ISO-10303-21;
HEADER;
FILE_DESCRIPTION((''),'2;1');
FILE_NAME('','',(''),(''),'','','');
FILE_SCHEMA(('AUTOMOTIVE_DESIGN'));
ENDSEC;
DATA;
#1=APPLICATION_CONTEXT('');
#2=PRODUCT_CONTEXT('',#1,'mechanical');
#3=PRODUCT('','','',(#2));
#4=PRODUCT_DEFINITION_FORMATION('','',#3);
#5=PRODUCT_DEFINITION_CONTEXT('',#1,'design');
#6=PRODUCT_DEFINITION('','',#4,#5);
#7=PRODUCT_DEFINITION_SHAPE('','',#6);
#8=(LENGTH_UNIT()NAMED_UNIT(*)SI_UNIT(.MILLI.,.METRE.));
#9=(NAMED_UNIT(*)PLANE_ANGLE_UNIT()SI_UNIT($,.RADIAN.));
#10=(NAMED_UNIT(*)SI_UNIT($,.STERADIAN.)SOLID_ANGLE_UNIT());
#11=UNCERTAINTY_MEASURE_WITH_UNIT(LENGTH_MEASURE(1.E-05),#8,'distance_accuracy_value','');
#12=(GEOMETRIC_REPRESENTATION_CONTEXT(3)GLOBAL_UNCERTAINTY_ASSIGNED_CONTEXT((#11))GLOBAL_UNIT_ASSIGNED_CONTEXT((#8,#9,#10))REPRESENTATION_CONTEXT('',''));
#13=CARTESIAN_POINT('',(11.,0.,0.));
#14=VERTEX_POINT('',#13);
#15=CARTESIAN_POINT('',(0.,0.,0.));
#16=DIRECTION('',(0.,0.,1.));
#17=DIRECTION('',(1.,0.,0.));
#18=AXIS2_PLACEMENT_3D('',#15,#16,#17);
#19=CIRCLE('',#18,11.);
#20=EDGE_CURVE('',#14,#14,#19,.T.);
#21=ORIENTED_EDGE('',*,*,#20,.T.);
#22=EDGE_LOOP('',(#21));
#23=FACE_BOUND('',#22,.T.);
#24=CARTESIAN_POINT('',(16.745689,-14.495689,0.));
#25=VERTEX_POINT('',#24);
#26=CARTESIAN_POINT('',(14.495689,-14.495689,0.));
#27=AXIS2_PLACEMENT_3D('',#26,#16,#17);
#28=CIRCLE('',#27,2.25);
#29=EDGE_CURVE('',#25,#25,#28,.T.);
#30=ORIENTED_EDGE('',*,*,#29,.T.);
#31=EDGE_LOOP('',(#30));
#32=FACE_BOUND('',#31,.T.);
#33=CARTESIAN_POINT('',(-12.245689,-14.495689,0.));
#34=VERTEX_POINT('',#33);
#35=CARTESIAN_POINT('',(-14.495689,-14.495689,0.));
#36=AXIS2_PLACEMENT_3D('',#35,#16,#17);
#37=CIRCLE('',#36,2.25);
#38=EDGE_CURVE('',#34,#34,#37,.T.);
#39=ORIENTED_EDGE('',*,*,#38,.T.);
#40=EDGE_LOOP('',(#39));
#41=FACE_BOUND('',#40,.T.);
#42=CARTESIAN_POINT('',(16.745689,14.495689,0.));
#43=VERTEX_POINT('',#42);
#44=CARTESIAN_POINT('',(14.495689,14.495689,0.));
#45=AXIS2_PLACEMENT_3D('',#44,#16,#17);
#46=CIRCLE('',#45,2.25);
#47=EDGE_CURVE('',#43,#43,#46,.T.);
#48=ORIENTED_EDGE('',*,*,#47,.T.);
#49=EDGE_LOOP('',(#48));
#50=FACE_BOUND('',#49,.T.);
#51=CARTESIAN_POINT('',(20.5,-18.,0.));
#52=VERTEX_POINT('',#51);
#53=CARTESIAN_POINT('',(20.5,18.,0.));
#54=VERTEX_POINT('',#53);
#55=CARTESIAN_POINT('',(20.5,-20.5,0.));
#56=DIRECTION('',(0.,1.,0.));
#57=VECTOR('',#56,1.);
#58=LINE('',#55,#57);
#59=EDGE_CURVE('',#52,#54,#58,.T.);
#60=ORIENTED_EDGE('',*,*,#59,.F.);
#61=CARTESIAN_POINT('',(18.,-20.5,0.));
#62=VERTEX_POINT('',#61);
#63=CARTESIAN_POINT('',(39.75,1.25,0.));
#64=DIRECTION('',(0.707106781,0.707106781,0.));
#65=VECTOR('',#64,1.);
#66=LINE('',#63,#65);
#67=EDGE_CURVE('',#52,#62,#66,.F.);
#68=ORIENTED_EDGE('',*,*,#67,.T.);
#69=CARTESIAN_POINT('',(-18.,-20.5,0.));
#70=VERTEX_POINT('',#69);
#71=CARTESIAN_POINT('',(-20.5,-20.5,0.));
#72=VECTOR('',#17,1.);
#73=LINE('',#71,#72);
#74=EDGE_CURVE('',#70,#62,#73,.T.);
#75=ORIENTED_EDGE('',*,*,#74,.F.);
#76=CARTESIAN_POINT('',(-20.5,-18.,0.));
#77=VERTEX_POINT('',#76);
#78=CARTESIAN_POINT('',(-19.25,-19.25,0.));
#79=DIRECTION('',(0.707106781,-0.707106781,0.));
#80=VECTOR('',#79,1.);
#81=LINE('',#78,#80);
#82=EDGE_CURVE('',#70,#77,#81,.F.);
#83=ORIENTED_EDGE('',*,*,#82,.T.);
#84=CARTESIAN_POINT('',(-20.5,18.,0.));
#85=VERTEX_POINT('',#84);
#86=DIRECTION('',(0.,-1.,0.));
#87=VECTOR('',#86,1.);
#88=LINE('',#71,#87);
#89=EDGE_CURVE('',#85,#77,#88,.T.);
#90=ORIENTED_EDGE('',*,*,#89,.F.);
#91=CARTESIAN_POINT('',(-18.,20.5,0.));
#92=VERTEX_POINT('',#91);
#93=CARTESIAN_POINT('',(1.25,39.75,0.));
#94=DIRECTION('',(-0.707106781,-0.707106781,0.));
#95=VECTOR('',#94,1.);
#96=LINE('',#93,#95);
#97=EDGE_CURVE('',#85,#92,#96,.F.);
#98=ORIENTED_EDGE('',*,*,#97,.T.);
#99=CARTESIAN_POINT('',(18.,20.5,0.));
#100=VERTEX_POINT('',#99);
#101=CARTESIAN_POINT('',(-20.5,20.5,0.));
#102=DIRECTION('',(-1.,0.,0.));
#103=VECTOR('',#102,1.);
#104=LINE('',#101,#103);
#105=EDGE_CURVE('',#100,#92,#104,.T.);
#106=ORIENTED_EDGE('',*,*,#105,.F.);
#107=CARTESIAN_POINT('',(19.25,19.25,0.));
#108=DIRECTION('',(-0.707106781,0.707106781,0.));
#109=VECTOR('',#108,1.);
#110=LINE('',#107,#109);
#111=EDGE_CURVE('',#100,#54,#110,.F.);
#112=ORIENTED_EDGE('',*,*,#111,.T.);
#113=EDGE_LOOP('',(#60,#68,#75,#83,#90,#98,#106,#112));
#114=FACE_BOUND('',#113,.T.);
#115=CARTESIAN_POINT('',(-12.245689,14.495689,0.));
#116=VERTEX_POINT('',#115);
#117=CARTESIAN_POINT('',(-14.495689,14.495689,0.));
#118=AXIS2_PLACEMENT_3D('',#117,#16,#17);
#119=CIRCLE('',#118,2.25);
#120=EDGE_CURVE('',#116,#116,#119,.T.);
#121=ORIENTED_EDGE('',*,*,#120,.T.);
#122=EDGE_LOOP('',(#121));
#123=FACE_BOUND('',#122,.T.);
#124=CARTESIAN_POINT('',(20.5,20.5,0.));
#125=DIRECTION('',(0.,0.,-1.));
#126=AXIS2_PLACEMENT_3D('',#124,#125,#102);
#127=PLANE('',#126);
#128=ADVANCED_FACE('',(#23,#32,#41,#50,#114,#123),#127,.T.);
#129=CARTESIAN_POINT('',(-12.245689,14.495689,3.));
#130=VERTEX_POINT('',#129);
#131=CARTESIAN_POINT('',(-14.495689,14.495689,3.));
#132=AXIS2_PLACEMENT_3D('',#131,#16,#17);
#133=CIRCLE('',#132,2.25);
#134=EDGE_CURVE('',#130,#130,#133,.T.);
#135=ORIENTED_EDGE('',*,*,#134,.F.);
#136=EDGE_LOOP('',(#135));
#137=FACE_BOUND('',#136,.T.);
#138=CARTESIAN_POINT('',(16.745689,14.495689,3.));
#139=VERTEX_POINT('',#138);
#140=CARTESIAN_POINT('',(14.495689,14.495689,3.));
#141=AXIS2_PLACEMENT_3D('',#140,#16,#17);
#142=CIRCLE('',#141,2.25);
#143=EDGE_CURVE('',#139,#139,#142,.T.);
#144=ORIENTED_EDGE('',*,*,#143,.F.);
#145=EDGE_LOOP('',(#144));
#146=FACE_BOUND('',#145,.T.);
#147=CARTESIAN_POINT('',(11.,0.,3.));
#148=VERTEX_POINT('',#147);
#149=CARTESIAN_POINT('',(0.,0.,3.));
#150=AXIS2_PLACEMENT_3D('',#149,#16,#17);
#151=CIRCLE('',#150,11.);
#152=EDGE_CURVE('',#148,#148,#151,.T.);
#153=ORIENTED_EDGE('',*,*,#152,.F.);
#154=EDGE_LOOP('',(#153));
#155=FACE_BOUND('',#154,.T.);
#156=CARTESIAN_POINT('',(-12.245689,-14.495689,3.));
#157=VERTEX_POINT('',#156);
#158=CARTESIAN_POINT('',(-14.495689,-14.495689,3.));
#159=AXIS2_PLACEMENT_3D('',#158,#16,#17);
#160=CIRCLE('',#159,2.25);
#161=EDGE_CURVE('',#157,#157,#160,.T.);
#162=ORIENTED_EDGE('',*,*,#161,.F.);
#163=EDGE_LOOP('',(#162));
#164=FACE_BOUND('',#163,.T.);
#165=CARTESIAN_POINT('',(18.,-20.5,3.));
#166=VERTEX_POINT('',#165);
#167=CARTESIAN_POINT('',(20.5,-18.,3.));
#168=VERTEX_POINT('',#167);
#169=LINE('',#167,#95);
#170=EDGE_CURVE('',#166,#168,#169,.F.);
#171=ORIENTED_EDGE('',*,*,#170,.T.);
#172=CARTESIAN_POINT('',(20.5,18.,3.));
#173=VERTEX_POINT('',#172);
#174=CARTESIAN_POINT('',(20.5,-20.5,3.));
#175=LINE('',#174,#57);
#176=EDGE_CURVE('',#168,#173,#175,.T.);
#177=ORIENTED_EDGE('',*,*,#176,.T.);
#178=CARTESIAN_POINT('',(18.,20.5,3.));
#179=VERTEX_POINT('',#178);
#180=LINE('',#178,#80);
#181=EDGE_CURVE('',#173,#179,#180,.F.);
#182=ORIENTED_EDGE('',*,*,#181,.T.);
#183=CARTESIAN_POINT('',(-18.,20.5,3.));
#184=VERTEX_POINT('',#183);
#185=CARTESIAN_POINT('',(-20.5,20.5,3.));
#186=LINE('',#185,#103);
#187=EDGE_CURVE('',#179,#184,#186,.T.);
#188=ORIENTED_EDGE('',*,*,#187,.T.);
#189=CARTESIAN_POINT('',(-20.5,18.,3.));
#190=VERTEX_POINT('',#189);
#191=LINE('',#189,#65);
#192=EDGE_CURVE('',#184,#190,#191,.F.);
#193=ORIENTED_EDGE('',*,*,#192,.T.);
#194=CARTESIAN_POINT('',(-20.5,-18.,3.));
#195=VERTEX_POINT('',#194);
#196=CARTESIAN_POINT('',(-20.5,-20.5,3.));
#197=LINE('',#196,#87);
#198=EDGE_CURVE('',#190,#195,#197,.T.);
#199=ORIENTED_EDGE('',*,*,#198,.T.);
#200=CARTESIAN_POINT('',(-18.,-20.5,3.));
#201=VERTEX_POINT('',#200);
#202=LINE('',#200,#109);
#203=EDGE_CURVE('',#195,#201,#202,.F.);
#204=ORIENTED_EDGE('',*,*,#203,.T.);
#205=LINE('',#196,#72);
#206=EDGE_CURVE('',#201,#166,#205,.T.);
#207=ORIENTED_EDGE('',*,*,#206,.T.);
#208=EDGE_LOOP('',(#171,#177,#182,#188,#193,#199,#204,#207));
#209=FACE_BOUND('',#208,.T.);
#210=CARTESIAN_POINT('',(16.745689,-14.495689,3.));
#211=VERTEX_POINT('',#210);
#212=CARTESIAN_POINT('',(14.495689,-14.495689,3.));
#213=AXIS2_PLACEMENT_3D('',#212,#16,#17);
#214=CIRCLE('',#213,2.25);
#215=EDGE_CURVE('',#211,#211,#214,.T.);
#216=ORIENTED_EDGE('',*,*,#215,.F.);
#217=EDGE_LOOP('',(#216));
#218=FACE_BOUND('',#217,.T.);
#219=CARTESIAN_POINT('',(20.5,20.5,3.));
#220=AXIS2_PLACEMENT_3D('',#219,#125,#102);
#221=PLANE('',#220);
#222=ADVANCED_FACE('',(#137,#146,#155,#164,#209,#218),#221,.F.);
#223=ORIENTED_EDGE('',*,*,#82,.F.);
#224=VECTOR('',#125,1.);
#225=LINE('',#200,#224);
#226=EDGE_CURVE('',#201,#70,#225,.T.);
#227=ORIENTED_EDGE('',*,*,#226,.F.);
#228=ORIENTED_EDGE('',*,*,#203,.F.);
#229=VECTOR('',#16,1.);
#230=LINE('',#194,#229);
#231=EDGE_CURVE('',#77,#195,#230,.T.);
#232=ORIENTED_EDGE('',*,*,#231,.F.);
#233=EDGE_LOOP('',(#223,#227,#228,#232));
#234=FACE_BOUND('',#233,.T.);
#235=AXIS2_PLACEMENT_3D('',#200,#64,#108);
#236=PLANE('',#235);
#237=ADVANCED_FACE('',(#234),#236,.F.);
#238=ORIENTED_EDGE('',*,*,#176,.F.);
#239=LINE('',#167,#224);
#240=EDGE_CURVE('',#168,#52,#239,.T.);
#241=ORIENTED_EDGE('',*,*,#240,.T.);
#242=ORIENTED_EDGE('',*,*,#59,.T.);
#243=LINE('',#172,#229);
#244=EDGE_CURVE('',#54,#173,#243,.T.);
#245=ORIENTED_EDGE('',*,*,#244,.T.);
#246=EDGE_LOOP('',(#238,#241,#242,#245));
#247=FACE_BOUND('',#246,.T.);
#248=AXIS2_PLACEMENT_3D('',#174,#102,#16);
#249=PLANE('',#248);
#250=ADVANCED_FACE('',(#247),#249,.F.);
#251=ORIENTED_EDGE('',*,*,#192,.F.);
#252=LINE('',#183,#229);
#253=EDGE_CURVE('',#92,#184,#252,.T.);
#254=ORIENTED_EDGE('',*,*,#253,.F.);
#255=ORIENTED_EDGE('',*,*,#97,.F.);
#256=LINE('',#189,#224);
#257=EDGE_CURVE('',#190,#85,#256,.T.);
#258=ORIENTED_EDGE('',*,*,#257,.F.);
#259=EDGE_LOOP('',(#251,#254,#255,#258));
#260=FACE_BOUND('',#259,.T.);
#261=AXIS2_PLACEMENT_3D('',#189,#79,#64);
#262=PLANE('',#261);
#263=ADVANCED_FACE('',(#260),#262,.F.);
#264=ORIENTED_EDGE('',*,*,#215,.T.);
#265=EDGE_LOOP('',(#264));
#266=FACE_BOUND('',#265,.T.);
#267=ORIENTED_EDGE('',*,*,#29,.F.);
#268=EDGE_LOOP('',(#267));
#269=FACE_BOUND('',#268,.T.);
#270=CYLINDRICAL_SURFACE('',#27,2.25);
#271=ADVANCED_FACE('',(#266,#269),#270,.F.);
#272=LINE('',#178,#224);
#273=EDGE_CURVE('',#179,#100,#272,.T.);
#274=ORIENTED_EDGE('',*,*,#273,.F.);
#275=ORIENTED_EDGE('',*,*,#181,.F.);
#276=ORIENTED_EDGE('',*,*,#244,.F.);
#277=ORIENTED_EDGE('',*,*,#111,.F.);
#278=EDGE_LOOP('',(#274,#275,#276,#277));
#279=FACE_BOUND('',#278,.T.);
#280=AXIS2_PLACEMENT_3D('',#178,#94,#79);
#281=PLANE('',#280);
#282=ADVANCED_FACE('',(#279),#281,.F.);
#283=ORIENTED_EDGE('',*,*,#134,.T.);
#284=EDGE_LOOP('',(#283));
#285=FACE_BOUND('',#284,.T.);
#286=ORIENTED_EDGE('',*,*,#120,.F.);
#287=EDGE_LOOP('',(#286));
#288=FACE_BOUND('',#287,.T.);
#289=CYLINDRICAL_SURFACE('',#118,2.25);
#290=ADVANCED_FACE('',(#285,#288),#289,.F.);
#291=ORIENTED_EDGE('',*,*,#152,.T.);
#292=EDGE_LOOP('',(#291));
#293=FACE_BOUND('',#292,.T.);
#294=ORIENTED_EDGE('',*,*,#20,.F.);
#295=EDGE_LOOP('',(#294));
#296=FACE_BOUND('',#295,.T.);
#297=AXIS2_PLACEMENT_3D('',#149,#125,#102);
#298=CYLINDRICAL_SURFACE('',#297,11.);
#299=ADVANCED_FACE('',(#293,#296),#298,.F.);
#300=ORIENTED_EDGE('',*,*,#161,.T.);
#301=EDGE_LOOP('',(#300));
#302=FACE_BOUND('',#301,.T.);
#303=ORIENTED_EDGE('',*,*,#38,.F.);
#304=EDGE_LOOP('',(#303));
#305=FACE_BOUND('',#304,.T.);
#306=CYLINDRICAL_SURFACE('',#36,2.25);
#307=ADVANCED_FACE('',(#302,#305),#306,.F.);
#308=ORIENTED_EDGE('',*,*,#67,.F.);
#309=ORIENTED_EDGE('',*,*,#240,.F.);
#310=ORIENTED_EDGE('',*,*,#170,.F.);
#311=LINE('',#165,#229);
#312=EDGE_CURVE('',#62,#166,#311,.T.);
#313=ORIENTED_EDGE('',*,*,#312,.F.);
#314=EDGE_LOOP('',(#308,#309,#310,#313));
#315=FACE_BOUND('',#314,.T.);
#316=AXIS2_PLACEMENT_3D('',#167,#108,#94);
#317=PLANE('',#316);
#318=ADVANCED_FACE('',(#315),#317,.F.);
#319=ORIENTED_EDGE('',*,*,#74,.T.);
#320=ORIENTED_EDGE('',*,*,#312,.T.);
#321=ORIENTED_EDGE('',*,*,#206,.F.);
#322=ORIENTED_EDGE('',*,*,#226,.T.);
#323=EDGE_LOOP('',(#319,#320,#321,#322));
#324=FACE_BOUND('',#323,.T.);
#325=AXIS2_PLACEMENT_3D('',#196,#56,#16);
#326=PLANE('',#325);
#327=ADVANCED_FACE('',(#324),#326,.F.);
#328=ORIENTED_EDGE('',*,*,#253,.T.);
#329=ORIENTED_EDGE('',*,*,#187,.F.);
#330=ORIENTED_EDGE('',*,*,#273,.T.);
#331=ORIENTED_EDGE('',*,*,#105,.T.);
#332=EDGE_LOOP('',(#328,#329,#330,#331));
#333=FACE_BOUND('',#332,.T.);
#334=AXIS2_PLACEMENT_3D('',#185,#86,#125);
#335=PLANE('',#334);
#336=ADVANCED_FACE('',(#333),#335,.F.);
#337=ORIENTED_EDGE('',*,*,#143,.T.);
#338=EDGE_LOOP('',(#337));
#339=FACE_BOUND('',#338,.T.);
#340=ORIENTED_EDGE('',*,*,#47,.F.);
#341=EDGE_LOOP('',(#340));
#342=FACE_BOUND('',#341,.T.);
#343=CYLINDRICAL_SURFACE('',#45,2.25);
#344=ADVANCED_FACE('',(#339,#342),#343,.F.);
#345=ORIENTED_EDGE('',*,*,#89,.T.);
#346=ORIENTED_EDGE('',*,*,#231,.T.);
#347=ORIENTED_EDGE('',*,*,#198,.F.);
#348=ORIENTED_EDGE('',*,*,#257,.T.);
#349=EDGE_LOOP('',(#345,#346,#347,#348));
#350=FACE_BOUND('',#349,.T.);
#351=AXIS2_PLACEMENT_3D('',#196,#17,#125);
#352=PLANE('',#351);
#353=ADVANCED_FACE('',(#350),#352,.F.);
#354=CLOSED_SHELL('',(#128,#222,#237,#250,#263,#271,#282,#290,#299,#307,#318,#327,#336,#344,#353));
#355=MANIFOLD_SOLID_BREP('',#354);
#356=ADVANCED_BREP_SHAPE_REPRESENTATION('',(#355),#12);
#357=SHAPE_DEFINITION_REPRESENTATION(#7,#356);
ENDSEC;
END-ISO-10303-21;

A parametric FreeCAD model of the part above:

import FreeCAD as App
import Part
import Sketcher

V = App.Vector
Q = App.Units.Quantity


def edges_at(feature, points):
    """Names of the edges that pass closest to the given points."""
    edges = feature.Shape.Edges
    near = lambda p: min(range(len(edges)), key=lambda i: edges[i].distToShape(Part.Vertex(*p))[0])
    return sorted({f"Edge{near(p) + 1}" for p in points})

doc = App.newDocument("Part")
body = doc.addObject("PartDesign::Body", "Body")

# Sketch on XY plane
sketch1 = body.newObject("Sketcher::SketchObject", "Sketch")
sketch1.AttachmentSupport = (doc.getObject("XY_Plane"), [""])
sketch1.MapMode = "FlatFace"
sketch1.addGeometry([
    Part.LineSegment(V(-20, 20, 0), V(-20, -20, 0)),  # 0
    Part.LineSegment(V(-20, -20, 0), V(20, -20, 0)),  # 1
    Part.LineSegment(V(20, -20, 0), V(20, 20, 0)),  # 2
    Part.LineSegment(V(20, 20, 0), V(-20, 20, 0)),  # 3
    Part.Circle(V(0, 0, 0), V(0, 0, 1), 11),  # 4
], False)
sketch1.addConstraint([
    Sketcher.Constraint("Coincident", 0, 2, 1, 1),
    Sketcher.Constraint("Coincident", 1, 2, 2, 1),
    Sketcher.Constraint("Coincident", 2, 2, 3, 1),
    Sketcher.Constraint("Coincident", 3, 2, 0, 1),
    Sketcher.Constraint("Vertical", 0),
    Sketcher.Constraint("Horizontal", 1),
    Sketcher.Constraint("Vertical", 2),
    Sketcher.Constraint("Horizontal", 3),
    Sketcher.Constraint("Coincident", 4, 3, -1, 1),
    Sketcher.Constraint("Symmetric", 0, 2, 2, 2, -1, 1),
    Sketcher.Constraint("Equal", 3, 0),
    Sketcher.Constraint("Diameter", 4, Q("22 mm")),
    Sketcher.Constraint("DistanceX", 1, 1, 1, 2, Q("41 mm")),
])
pad1 = body.newObject("PartDesign::Pad", "Pad")
pad1.Profile = sketch1
pad1.Length = 3

# Sketch on XY plane
sketch2 = body.newObject("Sketcher::SketchObject", "Sketch001")
sketch2.AttachmentSupport = (doc.getObject("XY_Plane"), [""])
sketch2.MapMode = "FlatFace"
sketch2.AttachmentOffset = App.Placement(V(0, 0, 3), App.Rotation())
sketch2.addGeometry([
    Part.Circle(V(-14.5, 14.5, 0), V(0, 0, 1), 2.2),
    Part.Circle(V(14.5, 14.5, 0), V(0, 0, 1), 2.2),
    Part.Circle(V(14.5, -14.5, 0), V(0, 0, 1), 2.2),
    Part.Circle(V(-14.5, -14.5, 0), V(0, 0, 1), 2.2),
], False)
sketch2.addConstraint([
    Sketcher.Constraint("Equal", 0, 1),
    Sketcher.Constraint("Equal", 1, 2),
    Sketcher.Constraint("Equal", 2, 3),
    Sketcher.Constraint("Symmetric", 0, 3, 2, 3, -1, 1),
    Sketcher.Constraint("Symmetric", 1, 3, 3, 3, -1, 1),
    Sketcher.Constraint("Symmetric", 0, 3, 1, 3, -2),
    Sketcher.Constraint("Diameter", 0, Q("4.5 mm")),
    Sketcher.Constraint("DistanceX", 0, 3, -1, 1, Q("14.495689 mm")),
    Sketcher.Constraint("DistanceY", -1, 1, 0, 3, Q("14.495689 mm")),
])
pocket1 = body.newObject("PartDesign::Pocket", "Pocket")
pocket1.Profile = sketch2
pocket1.Type = "ThroughAll"
doc.recompute()

chamfer = body.newObject("PartDesign::Chamfer", "Chamfer")
chamfer.Base = (pocket1, edges_at(pocket1, [
    (20.5, -20.5, 1.5),
    (-20.5, -20.5, 1.5),
    (-20.5, 20.5, 1.5),
    (20.5, 20.5, 1.5),
]))
chamfer.Size = 2.5

doc.recompute()
